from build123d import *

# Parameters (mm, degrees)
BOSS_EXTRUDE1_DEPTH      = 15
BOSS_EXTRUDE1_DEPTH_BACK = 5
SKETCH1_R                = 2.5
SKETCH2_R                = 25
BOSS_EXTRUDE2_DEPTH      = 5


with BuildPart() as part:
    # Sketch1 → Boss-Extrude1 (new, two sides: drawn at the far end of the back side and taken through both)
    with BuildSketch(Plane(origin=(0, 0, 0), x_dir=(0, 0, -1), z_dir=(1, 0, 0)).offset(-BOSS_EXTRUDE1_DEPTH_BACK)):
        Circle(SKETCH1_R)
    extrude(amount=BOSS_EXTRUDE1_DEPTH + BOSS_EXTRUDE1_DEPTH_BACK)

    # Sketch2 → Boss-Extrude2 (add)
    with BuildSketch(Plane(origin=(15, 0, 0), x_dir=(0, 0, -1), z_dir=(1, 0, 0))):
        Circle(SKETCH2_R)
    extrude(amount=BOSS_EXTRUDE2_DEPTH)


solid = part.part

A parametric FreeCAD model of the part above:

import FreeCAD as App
import Part
import Sketcher

V = App.Vector

doc = App.newDocument("Part")
params = doc.addObject("Spreadsheet::Sheet", "Params")
for row, (alias, value) in enumerate([
    ("sketch1_diameter", "5 mm"),
    ("pad1_length", "15 mm"),
    ("pad1_length2", "5 mm"),
    ("sketch2_diameter", "50 mm"),
    ("pad2_length", "5 mm"),
], start=1):
    params.set(f"A{row}", alias)
    params.set(f"B{row}", "=" + value)
    params.setAlias(f"B{row}", alias)

body = doc.addObject("PartDesign::Body", "Body")

# Sketch on YZ plane
sketch1 = doc.addObject("Sketcher::SketchObject", "Sketch")
body.addObject(sketch1)
sketch1.AttachmentSupport = (doc.YZ_Plane, [""])
sketch1.MapMode = "FlatFace"
sketch1.addGeometry(Part.Circle(V(0, 0, 0), V(0, 0, 1), 2.5), False)
sketch1.addConstraint(Sketcher.Constraint("Coincident", 0, 3, -1, 1))
sketch1.addConstraint(Sketcher.Constraint("Diameter", 0, 5.0))
sketch1.setExpression("Constraints[1]", "Params.sketch1_diameter")
pad1 = doc.addObject("PartDesign::Pad", "Pad")
body.addObject(pad1)
pad1.Profile = sketch1
pad1.Type = "TwoLengths"
pad1.setExpression("Length", "Params.pad1_length")
pad1.setExpression("Length2", "Params.pad1_length2")

# Sketch on YZ plane
sketch2 = doc.addObject("Sketcher::SketchObject", "Sketch001")
body.addObject(sketch2)
sketch2.AttachmentSupport = (doc.YZ_Plane, [""])
sketch2.MapMode = "FlatFace"
sketch2.AttachmentOffset = App.Placement(V(0, 0, 15), App.Rotation())
sketch2.addGeometry(Part.Circle(V(0, 0, 0), V(0, 0, 1), 25), False)
sketch2.addConstraint(Sketcher.Constraint("Coincident", 0, 3, -1, 1))
sketch2.addConstraint(Sketcher.Constraint("Diameter", 0, 50.0))
sketch2.setExpression("Constraints[1]", "Params.sketch2_diameter")
pad2 = doc.addObject("PartDesign::Pad", "Pad001")
body.addObject(pad2)
pad2.Profile = sketch2
pad2.setExpression("Length", "Params.pad2_length")

doc.recompute()
